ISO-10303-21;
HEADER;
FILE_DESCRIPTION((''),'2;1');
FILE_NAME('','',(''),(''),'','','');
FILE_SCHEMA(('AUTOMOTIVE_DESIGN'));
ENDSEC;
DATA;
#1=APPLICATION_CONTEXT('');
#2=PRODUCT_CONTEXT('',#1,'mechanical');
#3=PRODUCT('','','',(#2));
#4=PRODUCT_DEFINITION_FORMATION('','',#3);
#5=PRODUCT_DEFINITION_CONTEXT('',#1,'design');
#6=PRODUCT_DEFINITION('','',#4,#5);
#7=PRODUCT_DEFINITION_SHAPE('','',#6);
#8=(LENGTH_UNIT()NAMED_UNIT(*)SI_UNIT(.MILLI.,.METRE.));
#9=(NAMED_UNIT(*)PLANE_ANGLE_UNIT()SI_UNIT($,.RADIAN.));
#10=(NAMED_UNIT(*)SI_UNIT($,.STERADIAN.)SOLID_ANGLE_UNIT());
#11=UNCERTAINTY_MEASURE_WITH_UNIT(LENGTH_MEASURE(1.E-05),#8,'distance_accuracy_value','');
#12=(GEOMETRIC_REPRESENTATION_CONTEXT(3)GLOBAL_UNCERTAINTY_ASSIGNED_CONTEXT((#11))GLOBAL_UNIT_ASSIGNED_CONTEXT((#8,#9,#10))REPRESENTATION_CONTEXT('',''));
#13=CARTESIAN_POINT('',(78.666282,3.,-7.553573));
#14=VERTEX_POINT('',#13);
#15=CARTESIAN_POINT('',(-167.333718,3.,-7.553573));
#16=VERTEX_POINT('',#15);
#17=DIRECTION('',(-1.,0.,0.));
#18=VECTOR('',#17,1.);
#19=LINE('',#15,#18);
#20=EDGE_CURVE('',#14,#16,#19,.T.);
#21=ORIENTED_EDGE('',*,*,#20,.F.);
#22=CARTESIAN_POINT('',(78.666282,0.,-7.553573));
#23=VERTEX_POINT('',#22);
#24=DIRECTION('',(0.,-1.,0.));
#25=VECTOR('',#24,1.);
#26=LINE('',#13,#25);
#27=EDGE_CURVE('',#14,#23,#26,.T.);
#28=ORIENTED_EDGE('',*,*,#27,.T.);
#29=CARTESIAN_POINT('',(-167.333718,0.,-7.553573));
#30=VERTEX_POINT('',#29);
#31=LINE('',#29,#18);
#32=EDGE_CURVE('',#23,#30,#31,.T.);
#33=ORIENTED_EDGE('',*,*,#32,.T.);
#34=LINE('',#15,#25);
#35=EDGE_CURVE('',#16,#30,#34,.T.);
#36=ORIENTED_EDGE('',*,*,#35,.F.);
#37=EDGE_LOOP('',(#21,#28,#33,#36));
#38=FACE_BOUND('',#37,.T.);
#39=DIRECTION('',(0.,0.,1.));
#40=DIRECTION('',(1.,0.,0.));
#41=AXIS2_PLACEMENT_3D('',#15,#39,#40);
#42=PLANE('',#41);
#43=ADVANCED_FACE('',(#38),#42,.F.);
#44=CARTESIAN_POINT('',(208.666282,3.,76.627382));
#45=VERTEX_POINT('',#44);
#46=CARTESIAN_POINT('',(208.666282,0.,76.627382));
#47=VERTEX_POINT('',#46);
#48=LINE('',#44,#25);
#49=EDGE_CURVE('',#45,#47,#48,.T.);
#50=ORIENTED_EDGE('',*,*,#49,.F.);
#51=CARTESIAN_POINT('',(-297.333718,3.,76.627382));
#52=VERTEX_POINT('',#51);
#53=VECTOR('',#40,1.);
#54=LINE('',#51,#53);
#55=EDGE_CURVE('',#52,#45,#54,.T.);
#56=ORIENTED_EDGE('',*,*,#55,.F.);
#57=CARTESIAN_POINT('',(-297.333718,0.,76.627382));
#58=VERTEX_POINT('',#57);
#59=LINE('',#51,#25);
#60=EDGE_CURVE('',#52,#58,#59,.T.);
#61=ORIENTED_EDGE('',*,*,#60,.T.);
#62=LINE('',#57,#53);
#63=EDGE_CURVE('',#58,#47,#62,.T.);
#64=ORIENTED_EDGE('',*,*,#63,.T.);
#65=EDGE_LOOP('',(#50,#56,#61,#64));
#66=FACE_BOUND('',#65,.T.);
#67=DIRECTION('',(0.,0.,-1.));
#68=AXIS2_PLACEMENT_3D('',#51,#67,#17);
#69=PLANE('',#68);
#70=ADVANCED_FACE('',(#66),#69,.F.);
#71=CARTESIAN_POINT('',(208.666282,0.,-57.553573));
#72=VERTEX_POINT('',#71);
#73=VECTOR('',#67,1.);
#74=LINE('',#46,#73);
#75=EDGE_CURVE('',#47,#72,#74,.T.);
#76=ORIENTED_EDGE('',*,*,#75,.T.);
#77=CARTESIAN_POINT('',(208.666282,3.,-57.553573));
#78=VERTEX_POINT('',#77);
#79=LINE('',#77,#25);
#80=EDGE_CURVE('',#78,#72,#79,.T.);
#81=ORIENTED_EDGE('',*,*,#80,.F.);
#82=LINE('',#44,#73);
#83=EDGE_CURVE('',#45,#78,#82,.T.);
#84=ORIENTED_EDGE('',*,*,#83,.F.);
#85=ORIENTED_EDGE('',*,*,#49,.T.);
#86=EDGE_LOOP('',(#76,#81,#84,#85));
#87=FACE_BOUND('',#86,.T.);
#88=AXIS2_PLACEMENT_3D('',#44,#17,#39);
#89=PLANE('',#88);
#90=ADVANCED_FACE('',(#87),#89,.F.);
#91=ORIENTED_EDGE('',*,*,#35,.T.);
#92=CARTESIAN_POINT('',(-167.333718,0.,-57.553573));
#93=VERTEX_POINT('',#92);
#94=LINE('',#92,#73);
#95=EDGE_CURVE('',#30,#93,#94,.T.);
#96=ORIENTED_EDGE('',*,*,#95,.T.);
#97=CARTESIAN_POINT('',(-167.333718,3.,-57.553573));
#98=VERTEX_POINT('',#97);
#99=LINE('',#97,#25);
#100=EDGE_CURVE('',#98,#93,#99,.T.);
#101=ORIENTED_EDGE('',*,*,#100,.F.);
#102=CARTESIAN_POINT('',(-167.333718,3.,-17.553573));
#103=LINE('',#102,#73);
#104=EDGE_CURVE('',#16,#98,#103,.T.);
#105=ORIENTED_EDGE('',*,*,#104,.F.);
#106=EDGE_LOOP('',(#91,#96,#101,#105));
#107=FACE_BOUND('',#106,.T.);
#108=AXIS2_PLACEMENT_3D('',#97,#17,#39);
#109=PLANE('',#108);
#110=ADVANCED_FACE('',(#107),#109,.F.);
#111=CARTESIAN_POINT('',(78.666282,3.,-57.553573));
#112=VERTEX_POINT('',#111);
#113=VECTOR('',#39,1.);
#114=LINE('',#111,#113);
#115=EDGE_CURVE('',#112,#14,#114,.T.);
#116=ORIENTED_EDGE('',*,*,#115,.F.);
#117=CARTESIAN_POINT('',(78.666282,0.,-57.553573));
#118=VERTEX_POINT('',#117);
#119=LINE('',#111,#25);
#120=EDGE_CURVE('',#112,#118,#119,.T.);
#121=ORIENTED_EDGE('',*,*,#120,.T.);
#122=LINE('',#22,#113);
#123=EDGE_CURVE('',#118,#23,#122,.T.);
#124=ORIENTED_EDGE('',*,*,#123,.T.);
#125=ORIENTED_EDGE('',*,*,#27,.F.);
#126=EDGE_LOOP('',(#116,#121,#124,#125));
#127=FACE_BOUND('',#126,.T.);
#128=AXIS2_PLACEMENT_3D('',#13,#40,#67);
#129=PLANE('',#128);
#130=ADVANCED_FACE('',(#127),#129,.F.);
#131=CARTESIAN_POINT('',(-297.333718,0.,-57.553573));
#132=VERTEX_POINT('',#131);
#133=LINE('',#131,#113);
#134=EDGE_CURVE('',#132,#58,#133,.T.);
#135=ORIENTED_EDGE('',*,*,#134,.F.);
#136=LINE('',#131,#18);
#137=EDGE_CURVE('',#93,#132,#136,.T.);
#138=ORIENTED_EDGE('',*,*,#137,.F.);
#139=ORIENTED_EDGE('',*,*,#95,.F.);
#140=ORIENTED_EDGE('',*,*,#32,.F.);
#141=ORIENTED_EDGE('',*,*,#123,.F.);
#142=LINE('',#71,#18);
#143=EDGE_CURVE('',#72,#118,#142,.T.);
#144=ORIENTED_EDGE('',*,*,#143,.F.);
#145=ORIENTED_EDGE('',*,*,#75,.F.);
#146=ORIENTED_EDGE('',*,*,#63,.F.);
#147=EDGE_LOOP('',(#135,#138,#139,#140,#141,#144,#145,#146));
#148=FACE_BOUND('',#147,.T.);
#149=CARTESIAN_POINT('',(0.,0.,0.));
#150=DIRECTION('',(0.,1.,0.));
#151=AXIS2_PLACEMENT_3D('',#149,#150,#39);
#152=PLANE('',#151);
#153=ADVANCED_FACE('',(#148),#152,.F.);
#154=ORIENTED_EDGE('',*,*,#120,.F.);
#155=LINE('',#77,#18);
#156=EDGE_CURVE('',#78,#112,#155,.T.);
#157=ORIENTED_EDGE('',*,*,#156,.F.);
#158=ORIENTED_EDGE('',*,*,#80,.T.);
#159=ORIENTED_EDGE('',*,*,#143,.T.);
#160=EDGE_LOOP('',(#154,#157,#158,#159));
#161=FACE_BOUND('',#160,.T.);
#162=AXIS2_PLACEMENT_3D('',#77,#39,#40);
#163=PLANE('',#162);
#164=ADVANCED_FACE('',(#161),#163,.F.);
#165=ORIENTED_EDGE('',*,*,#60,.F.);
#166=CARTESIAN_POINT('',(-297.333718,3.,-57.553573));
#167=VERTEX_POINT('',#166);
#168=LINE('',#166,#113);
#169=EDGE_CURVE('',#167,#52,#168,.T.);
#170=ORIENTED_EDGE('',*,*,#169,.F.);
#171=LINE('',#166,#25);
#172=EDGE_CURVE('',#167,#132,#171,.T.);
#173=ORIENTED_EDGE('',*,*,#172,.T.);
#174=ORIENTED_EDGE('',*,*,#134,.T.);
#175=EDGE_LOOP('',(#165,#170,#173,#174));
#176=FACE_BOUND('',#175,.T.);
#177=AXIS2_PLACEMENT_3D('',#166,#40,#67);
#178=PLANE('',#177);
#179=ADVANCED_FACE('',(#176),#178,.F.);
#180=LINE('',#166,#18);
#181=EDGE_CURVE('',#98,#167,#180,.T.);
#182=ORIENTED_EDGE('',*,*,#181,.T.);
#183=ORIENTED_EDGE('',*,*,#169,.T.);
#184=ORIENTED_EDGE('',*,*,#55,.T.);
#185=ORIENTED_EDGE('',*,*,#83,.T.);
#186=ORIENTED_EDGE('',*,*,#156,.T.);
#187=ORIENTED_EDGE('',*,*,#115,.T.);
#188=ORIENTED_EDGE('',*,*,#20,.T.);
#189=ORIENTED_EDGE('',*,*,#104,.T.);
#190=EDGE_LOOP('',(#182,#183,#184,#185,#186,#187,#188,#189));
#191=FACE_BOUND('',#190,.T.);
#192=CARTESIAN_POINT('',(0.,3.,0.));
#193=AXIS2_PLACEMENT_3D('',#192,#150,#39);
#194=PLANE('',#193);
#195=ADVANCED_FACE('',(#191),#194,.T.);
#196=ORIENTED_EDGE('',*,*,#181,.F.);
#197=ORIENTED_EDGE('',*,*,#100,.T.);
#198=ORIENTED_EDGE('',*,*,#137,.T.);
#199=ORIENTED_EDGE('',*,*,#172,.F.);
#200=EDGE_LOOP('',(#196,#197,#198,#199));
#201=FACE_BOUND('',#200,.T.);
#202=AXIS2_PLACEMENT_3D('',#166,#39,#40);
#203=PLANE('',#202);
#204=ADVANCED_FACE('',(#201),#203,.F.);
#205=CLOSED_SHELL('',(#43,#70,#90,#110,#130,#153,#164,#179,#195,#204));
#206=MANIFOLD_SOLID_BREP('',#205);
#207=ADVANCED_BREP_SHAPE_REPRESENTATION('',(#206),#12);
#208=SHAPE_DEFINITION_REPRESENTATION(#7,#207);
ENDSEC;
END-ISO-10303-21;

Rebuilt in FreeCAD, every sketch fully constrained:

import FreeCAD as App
import Part
import Sketcher

V = App.Vector

doc = App.newDocument("Part")
body = doc.addObject("PartDesign::Body", "Body")

sketch1 = doc.addObject("Sketcher::SketchObject", "Sketch")
body.addObject(sketch1)
sketch1.AttachmentSupport = (doc.XZ_Plane, [""])
sketch1.MapMode = "FlatFace"
sketch1.addGeometry([
    Part.LineSegment(V(-167.333718, -57.553573, 0), V(-297.333718, -57.553573, 0)),
    Part.LineSegment(V(-297.333718, -57.553573, 0), V(-297.333718, 76.627382, 0)),
    Part.LineSegment(V(-297.333718, 76.627382, 0), V(208.666282, 76.627382, 0)),
    Part.LineSegment(V(208.666282, 76.627382, 0), V(208.666282, -57.553573, 0)),
    Part.LineSegment(V(208.666282, -57.553573, 0), V(78.666282, -57.553573, 0)),
    Part.LineSegment(V(78.666282, -57.553573, 0), V(78.666282, -7.553573, 0)),
    Part.LineSegment(V(78.666282, -7.553573, 0), V(-167.333718, -7.553573, 0)),
    Part.LineSegment(V(-167.333718, -7.553573, 0), V(-167.333718, -57.553573, 0)),
], False)
sketch1.addConstraint([
    Sketcher.Constraint("Coincident", 0, 2, 1, 1),
    Sketcher.Constraint("Coincident", 1, 2, 2, 1),
    Sketcher.Constraint("Coincident", 2, 2, 3, 1),
    Sketcher.Constraint("Coincident", 3, 2, 4, 1),
    Sketcher.Constraint("Coincident", 4, 2, 5, 1),
    Sketcher.Constraint("Coincident", 5, 2, 6, 1),
    Sketcher.Constraint("Coincident", 6, 2, 7, 1),
    Sketcher.Constraint("Coincident", 7, 2, 0, 1),
    Sketcher.Constraint("Horizontal", 0),
    Sketcher.Constraint("Vertical", 1),
    Sketcher.Constraint("Horizontal", 2),
    Sketcher.Constraint("Vertical", 3),
    Sketcher.Constraint("Horizontal", 4),
    Sketcher.Constraint("Vertical", 5),
    Sketcher.Constraint("Horizontal", 6),
    Sketcher.Constraint("Vertical", 7),
    Sketcher.Constraint("Horizontal", 0, 2, 3, 2),
    Sketcher.Constraint("Equal", 0, 4),
    Sketcher.Constraint("DistanceX", 0, 2, 0, 1, 130.0),
    Sketcher.Constraint("DistanceX", 2, 1, 2, 2, 506.0),
    Sketcher.Constraint("DistanceY", 5, 1, 5, 2, 50.0),
    Sketcher.Constraint("DistanceY", 1, 1, 1, 2, 134.180955),
    Sketcher.Constraint("DistanceX", 0, 2, -1, 1, 297.333718),
    Sketcher.Constraint("DistanceY", -1, 1, 1, 2, 76.627382),
])
pad1 = doc.addObject("PartDesign::Pad", "Pad")
body.addObject(pad1)
pad1.Profile = sketch1
pad1.Length = 3
pad1.Reversed = True

doc.recompute()
